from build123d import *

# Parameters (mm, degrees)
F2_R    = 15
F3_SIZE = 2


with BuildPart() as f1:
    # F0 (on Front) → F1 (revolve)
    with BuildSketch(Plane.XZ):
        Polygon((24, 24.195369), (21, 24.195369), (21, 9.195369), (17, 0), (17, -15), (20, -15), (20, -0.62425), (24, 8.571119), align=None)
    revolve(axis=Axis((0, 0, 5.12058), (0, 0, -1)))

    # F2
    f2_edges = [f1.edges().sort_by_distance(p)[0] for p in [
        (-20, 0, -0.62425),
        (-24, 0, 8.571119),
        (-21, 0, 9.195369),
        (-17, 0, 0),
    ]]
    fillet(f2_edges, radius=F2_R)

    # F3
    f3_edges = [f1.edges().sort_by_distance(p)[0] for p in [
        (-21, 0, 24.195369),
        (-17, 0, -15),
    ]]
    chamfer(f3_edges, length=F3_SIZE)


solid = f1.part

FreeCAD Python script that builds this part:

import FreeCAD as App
import Part
import Sketcher

V = App.Vector
Q = App.Units.Quantity


def edges_at(feature, points):
    """Names of the edges that pass closest to the given points."""
    edges = feature.Shape.Edges
    near = lambda p: min(range(len(edges)), key=lambda i: edges[i].distToShape(Part.Vertex(*p))[0])
    return sorted({f"Edge{near(p) + 1}" for p in points})

doc = App.newDocument("Part")
body = doc.addObject("PartDesign::Body", "Body")

sketch1 = body.newObject("Sketcher::SketchObject", "Sketch")
sketch1.AttachmentSupport = (doc.getObject("XZ_Plane"), [""])
sketch1.MapMode = "FlatFace"
sketch1.addGeometry(Part.LineSegment(V(24, 24.195369, 0), V(21, 24.195369, 0)), False)
sketch1.addGeometry(Part.LineSegment(V(21, 24.195369, 0), V(21, 9.195369, 0)), False)
sketch1.addGeometry(Part.LineSegment(V(21, 9.195369, 0), V(17, 0, 0)), False)
sketch1.addGeometry(Part.LineSegment(V(17, 0, 0), V(17, -15, 0)), False)
sketch1.addGeometry(Part.LineSegment(V(17, -15, 0), V(20, -15, 0)), False)
sketch1.addGeometry(Part.LineSegment(V(20, -15, 0), V(20, -0.62425, 0)), False)
sketch1.addGeometry(Part.LineSegment(V(20, -0.62425, 0), V(24, 8.571119, 0)), False)
sketch1.addGeometry(Part.LineSegment(V(24, 8.571119, 0), V(24, 24.195369, 0)), False)
sketch1.addConstraint(Sketcher.Constraint("Coincident", 0, 2, 1, 1))
sketch1.addConstraint(Sketcher.Constraint("Coincident", 1, 2, 2, 1))
sketch1.addConstraint(Sketcher.Constraint("Coincident", 2, 2, 3, 1))
sketch1.addConstraint(Sketcher.Constraint("Coincident", 3, 2, 4, 1))
sketch1.addConstraint(Sketcher.Constraint("Coincident", 4, 2, 5, 1))
sketch1.addConstraint(Sketcher.Constraint("Coincident", 5, 2, 6, 1))
sketch1.addConstraint(Sketcher.Constraint("Coincident", 6, 2, 7, 1))
sketch1.addConstraint(Sketcher.Constraint("Coincident", 7, 2, 0, 1))
sketch1.addConstraint(Sketcher.Constraint("Horizontal", 0))
sketch1.addConstraint(Sketcher.Constraint("Vertical", 1))
sketch1.addConstraint(Sketcher.Constraint("Vertical", 3))
sketch1.addConstraint(Sketcher.Constraint("Horizontal", 4))
sketch1.addConstraint(Sketcher.Constraint("Vertical", 5))
sketch1.addConstraint(Sketcher.Constraint("Vertical", 7))
sketch1.addConstraint(Sketcher.Constraint("PointOnObject", 2, 2, -1))
sketch1.addConstraint(Sketcher.Constraint("Parallel", 2, 6))
sketch1.addConstraint(Sketcher.Constraint("Equal", 0, 4))
sketch1.addConstraint(Sketcher.Constraint("Equal", 1, 3))
sketch1.addConstraint(Sketcher.Constraint("DistanceX", 0, 2, 0, 1, Q("3 mm")))
sketch1.addConstraint(Sketcher.Constraint("DistanceY", 1, 2, 1, 1, Q("15 mm")))
sketch1.addConstraint(Sketcher.Constraint("DistanceX", -1, 1, 0, 2, Q("21 mm")))
sketch1.addConstraint(Sketcher.Constraint("DistanceX", -1, 1, 2, 2, Q("17 mm")))
sketch1.addConstraint(Sketcher.Constraint("DistanceY", 5, 1, 5, 2, Q("14.37575 mm")))
sketch1.addConstraint(Sketcher.Constraint("DistanceY", -1, 1, 0, 2, Q("24.195369 mm")))
revolution = body.newObject("PartDesign::Revolution", "Revolution")
revolution.Profile = sketch1
revolution.ReferenceAxis = (sketch1, ["V_Axis"])
revolution.Angle = 360
doc.recompute()

fillet = body.newObject("PartDesign::Fillet", "Fillet")
fillet.Base = (revolution, edges_at(revolution, [
    (-20, 0, -0.624),
    (-24, 0, 8.571),
    (-21, 0, 9.195),
    (-17, 0, 0),
]))
fillet.Radius = 15
doc.recompute()

chamfer = body.newObject("PartDesign::Chamfer", "Chamfer")
chamfer.Base = (fillet, edges_at(fillet, [(-21, 0, 24.195), (-17, 0, -15)]))
chamfer.Size = 2

doc.recompute()
